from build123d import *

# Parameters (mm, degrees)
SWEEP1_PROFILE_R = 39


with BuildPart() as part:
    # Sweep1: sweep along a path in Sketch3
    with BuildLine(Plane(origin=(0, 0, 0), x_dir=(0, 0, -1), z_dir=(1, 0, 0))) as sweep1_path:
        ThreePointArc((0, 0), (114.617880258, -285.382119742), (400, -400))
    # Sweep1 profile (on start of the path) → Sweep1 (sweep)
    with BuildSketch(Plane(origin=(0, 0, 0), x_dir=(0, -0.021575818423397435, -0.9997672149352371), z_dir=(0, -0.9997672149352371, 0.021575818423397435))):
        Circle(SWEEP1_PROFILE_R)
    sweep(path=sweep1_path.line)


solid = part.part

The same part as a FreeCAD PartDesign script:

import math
import FreeCAD as App
import Part
import Sketcher

doc = App.newDocument("Part")
params = doc.addObject("Spreadsheet::Sheet", "Params")
for row, (alias, value) in enumerate([
    ("sketch1_diameter", "78 mm"),
], start=1):
    params.set(f"A{row}", alias)
    params.set(f"B{row}", "=" + value)
    params.setAlias(f"B{row}", alias)

body = doc.addObject("PartDesign::Body", "Body")

# Sketch on an angled plane
sketch1 = doc.addObject("Sketcher::SketchObject", "Sketch")
body.addObject(sketch1)
sketch1.Placement = App.Placement(App.Vector(0, 0, 0), App.Rotation(App.Vector(0, -0.021575818, -0.999767215), App.Vector(1, 0, 0), App.Vector(0, -0.999767215, 0.021575818), "ZXY"))
sketch1.addGeometry(Part.Circle(App.Vector(0, 0, 0), App.Vector(0, 0, 1), 39), False)
sketch1.addConstraint(Sketcher.Constraint("Coincident", 0, 3, -1, 1))
sketch1.addConstraint(Sketcher.Constraint("Diameter", 0, 78.0))
sketch1.setExpression("Constraints[1]", "Params.sketch1_diameter")

# Sketch on YZ plane
sketch2 = doc.addObject("Sketcher::SketchObject", "Sketch001")
body.addObject(sketch2)
sketch2.AttachmentSupport = (doc.YZ_Plane, [""])
sketch2.MapMode = "FlatFace"
sketch2.addGeometry(Part.ArcOfCircle(Part.Circle(App.Vector(-8, -392, 0), App.Vector(0, 0, 1), 392), math.radians(89), math.radians(181)), False)
sketch2.addConstraint(Sketcher.Constraint("Coincident", 0, 1, -1, 1))
sketch2.addConstraint(Sketcher.Constraint("DistanceX", 0, 2, -1, 1, 400.0))
sketch2.addConstraint(Sketcher.Constraint("DistanceY", 0, 2, -1, 1, 400.0))
sketch2.addConstraint(Sketcher.Constraint("Radius", 0, 391.641189))
doc.recompute()

additivepipe = doc.addObject("PartDesign::AdditivePipe", "AdditivePipe")
body.addObject(additivepipe)
additivepipe.Profile = sketch1
additivepipe.Spine = (sketch2, ["Edge1"])

doc.recompute()
